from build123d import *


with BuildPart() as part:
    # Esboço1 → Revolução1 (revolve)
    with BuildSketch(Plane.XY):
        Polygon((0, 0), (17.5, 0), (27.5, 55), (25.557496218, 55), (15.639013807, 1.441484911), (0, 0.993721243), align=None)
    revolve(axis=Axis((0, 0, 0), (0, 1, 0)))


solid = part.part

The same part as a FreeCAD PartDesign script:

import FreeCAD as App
import Part
import Sketcher
from FreeCAD import Vector
Q = App.Units.Quantity

doc = App.newDocument("Part")
body = doc.addObject("PartDesign::Body", "Body")

sketch1 = doc.addObject("Sketcher::SketchObject", "Sketch")
body.addObject(sketch1)
sketch1.AttachmentSupport = (doc.XY_Plane, [""])
sketch1.MapMode = "FlatFace"
sketch1.addGeometry([
    Part.LineSegment(Vector(0, 0, 0), Vector(17.5, 0, 0)),
    Part.LineSegment(Vector(17.5, 0, 0), Vector(27.5, 55, 0)),
    Part.LineSegment(Vector(27.5, 55, 0), Vector(25.6, 55, 0)),
    Part.LineSegment(Vector(25.6, 55, 0), Vector(15.6, 1.4, 0)),
    Part.LineSegment(Vector(15.6, 1.4, 0), Vector(0, 1, 0)),
    Part.LineSegment(Vector(0, 1, 0), Vector(0, 0, 0)),
], False)
sketch1.addConstraint([
    Sketcher.Constraint("Coincident", 0, 2, 1, 1),
    Sketcher.Constraint("Coincident", 1, 2, 2, 1),
    Sketcher.Constraint("Coincident", 2, 2, 3, 1),
    Sketcher.Constraint("Coincident", 3, 2, 4, 1),
    Sketcher.Constraint("Coincident", 4, 2, 5, 1),
    Sketcher.Constraint("Coincident", 5, 2, 0, 1),
    Sketcher.Constraint("Horizontal", 0),
    Sketcher.Constraint("Horizontal", 2),
    Sketcher.Constraint("Vertical", 5),
    Sketcher.Constraint("Coincident", 5, 2, -1, 1),
    Sketcher.Constraint("DistanceX", 0, 1, 0, 2, Q("17.5 mm")),
    Sketcher.Constraint("DistanceY", -1, 1, 1, 2, Q("55 mm")),
    Sketcher.Constraint("DistanceX", 0, 2, 1, 2, Q("10 mm")),
    Sketcher.Constraint("Angle", 4, Q("-178.360001 deg")),
    Sketcher.Constraint("DistanceY", 5, 2, 5, 1, Q("0.993721 mm")),
    Sketcher.Constraint("DistanceX", 2, 2, 2, 1, Q("1.942504 mm")),
    Sketcher.Constraint("Distance", 3, Q("54.469173 mm")),
])
revolution = doc.addObject("PartDesign::Revolution", "Revolution")
body.addObject(revolution)
revolution.Profile = sketch1
revolution.ReferenceAxis = (sketch1, ["V_Axis"])
revolution.Angle = 360

doc.recompute()
